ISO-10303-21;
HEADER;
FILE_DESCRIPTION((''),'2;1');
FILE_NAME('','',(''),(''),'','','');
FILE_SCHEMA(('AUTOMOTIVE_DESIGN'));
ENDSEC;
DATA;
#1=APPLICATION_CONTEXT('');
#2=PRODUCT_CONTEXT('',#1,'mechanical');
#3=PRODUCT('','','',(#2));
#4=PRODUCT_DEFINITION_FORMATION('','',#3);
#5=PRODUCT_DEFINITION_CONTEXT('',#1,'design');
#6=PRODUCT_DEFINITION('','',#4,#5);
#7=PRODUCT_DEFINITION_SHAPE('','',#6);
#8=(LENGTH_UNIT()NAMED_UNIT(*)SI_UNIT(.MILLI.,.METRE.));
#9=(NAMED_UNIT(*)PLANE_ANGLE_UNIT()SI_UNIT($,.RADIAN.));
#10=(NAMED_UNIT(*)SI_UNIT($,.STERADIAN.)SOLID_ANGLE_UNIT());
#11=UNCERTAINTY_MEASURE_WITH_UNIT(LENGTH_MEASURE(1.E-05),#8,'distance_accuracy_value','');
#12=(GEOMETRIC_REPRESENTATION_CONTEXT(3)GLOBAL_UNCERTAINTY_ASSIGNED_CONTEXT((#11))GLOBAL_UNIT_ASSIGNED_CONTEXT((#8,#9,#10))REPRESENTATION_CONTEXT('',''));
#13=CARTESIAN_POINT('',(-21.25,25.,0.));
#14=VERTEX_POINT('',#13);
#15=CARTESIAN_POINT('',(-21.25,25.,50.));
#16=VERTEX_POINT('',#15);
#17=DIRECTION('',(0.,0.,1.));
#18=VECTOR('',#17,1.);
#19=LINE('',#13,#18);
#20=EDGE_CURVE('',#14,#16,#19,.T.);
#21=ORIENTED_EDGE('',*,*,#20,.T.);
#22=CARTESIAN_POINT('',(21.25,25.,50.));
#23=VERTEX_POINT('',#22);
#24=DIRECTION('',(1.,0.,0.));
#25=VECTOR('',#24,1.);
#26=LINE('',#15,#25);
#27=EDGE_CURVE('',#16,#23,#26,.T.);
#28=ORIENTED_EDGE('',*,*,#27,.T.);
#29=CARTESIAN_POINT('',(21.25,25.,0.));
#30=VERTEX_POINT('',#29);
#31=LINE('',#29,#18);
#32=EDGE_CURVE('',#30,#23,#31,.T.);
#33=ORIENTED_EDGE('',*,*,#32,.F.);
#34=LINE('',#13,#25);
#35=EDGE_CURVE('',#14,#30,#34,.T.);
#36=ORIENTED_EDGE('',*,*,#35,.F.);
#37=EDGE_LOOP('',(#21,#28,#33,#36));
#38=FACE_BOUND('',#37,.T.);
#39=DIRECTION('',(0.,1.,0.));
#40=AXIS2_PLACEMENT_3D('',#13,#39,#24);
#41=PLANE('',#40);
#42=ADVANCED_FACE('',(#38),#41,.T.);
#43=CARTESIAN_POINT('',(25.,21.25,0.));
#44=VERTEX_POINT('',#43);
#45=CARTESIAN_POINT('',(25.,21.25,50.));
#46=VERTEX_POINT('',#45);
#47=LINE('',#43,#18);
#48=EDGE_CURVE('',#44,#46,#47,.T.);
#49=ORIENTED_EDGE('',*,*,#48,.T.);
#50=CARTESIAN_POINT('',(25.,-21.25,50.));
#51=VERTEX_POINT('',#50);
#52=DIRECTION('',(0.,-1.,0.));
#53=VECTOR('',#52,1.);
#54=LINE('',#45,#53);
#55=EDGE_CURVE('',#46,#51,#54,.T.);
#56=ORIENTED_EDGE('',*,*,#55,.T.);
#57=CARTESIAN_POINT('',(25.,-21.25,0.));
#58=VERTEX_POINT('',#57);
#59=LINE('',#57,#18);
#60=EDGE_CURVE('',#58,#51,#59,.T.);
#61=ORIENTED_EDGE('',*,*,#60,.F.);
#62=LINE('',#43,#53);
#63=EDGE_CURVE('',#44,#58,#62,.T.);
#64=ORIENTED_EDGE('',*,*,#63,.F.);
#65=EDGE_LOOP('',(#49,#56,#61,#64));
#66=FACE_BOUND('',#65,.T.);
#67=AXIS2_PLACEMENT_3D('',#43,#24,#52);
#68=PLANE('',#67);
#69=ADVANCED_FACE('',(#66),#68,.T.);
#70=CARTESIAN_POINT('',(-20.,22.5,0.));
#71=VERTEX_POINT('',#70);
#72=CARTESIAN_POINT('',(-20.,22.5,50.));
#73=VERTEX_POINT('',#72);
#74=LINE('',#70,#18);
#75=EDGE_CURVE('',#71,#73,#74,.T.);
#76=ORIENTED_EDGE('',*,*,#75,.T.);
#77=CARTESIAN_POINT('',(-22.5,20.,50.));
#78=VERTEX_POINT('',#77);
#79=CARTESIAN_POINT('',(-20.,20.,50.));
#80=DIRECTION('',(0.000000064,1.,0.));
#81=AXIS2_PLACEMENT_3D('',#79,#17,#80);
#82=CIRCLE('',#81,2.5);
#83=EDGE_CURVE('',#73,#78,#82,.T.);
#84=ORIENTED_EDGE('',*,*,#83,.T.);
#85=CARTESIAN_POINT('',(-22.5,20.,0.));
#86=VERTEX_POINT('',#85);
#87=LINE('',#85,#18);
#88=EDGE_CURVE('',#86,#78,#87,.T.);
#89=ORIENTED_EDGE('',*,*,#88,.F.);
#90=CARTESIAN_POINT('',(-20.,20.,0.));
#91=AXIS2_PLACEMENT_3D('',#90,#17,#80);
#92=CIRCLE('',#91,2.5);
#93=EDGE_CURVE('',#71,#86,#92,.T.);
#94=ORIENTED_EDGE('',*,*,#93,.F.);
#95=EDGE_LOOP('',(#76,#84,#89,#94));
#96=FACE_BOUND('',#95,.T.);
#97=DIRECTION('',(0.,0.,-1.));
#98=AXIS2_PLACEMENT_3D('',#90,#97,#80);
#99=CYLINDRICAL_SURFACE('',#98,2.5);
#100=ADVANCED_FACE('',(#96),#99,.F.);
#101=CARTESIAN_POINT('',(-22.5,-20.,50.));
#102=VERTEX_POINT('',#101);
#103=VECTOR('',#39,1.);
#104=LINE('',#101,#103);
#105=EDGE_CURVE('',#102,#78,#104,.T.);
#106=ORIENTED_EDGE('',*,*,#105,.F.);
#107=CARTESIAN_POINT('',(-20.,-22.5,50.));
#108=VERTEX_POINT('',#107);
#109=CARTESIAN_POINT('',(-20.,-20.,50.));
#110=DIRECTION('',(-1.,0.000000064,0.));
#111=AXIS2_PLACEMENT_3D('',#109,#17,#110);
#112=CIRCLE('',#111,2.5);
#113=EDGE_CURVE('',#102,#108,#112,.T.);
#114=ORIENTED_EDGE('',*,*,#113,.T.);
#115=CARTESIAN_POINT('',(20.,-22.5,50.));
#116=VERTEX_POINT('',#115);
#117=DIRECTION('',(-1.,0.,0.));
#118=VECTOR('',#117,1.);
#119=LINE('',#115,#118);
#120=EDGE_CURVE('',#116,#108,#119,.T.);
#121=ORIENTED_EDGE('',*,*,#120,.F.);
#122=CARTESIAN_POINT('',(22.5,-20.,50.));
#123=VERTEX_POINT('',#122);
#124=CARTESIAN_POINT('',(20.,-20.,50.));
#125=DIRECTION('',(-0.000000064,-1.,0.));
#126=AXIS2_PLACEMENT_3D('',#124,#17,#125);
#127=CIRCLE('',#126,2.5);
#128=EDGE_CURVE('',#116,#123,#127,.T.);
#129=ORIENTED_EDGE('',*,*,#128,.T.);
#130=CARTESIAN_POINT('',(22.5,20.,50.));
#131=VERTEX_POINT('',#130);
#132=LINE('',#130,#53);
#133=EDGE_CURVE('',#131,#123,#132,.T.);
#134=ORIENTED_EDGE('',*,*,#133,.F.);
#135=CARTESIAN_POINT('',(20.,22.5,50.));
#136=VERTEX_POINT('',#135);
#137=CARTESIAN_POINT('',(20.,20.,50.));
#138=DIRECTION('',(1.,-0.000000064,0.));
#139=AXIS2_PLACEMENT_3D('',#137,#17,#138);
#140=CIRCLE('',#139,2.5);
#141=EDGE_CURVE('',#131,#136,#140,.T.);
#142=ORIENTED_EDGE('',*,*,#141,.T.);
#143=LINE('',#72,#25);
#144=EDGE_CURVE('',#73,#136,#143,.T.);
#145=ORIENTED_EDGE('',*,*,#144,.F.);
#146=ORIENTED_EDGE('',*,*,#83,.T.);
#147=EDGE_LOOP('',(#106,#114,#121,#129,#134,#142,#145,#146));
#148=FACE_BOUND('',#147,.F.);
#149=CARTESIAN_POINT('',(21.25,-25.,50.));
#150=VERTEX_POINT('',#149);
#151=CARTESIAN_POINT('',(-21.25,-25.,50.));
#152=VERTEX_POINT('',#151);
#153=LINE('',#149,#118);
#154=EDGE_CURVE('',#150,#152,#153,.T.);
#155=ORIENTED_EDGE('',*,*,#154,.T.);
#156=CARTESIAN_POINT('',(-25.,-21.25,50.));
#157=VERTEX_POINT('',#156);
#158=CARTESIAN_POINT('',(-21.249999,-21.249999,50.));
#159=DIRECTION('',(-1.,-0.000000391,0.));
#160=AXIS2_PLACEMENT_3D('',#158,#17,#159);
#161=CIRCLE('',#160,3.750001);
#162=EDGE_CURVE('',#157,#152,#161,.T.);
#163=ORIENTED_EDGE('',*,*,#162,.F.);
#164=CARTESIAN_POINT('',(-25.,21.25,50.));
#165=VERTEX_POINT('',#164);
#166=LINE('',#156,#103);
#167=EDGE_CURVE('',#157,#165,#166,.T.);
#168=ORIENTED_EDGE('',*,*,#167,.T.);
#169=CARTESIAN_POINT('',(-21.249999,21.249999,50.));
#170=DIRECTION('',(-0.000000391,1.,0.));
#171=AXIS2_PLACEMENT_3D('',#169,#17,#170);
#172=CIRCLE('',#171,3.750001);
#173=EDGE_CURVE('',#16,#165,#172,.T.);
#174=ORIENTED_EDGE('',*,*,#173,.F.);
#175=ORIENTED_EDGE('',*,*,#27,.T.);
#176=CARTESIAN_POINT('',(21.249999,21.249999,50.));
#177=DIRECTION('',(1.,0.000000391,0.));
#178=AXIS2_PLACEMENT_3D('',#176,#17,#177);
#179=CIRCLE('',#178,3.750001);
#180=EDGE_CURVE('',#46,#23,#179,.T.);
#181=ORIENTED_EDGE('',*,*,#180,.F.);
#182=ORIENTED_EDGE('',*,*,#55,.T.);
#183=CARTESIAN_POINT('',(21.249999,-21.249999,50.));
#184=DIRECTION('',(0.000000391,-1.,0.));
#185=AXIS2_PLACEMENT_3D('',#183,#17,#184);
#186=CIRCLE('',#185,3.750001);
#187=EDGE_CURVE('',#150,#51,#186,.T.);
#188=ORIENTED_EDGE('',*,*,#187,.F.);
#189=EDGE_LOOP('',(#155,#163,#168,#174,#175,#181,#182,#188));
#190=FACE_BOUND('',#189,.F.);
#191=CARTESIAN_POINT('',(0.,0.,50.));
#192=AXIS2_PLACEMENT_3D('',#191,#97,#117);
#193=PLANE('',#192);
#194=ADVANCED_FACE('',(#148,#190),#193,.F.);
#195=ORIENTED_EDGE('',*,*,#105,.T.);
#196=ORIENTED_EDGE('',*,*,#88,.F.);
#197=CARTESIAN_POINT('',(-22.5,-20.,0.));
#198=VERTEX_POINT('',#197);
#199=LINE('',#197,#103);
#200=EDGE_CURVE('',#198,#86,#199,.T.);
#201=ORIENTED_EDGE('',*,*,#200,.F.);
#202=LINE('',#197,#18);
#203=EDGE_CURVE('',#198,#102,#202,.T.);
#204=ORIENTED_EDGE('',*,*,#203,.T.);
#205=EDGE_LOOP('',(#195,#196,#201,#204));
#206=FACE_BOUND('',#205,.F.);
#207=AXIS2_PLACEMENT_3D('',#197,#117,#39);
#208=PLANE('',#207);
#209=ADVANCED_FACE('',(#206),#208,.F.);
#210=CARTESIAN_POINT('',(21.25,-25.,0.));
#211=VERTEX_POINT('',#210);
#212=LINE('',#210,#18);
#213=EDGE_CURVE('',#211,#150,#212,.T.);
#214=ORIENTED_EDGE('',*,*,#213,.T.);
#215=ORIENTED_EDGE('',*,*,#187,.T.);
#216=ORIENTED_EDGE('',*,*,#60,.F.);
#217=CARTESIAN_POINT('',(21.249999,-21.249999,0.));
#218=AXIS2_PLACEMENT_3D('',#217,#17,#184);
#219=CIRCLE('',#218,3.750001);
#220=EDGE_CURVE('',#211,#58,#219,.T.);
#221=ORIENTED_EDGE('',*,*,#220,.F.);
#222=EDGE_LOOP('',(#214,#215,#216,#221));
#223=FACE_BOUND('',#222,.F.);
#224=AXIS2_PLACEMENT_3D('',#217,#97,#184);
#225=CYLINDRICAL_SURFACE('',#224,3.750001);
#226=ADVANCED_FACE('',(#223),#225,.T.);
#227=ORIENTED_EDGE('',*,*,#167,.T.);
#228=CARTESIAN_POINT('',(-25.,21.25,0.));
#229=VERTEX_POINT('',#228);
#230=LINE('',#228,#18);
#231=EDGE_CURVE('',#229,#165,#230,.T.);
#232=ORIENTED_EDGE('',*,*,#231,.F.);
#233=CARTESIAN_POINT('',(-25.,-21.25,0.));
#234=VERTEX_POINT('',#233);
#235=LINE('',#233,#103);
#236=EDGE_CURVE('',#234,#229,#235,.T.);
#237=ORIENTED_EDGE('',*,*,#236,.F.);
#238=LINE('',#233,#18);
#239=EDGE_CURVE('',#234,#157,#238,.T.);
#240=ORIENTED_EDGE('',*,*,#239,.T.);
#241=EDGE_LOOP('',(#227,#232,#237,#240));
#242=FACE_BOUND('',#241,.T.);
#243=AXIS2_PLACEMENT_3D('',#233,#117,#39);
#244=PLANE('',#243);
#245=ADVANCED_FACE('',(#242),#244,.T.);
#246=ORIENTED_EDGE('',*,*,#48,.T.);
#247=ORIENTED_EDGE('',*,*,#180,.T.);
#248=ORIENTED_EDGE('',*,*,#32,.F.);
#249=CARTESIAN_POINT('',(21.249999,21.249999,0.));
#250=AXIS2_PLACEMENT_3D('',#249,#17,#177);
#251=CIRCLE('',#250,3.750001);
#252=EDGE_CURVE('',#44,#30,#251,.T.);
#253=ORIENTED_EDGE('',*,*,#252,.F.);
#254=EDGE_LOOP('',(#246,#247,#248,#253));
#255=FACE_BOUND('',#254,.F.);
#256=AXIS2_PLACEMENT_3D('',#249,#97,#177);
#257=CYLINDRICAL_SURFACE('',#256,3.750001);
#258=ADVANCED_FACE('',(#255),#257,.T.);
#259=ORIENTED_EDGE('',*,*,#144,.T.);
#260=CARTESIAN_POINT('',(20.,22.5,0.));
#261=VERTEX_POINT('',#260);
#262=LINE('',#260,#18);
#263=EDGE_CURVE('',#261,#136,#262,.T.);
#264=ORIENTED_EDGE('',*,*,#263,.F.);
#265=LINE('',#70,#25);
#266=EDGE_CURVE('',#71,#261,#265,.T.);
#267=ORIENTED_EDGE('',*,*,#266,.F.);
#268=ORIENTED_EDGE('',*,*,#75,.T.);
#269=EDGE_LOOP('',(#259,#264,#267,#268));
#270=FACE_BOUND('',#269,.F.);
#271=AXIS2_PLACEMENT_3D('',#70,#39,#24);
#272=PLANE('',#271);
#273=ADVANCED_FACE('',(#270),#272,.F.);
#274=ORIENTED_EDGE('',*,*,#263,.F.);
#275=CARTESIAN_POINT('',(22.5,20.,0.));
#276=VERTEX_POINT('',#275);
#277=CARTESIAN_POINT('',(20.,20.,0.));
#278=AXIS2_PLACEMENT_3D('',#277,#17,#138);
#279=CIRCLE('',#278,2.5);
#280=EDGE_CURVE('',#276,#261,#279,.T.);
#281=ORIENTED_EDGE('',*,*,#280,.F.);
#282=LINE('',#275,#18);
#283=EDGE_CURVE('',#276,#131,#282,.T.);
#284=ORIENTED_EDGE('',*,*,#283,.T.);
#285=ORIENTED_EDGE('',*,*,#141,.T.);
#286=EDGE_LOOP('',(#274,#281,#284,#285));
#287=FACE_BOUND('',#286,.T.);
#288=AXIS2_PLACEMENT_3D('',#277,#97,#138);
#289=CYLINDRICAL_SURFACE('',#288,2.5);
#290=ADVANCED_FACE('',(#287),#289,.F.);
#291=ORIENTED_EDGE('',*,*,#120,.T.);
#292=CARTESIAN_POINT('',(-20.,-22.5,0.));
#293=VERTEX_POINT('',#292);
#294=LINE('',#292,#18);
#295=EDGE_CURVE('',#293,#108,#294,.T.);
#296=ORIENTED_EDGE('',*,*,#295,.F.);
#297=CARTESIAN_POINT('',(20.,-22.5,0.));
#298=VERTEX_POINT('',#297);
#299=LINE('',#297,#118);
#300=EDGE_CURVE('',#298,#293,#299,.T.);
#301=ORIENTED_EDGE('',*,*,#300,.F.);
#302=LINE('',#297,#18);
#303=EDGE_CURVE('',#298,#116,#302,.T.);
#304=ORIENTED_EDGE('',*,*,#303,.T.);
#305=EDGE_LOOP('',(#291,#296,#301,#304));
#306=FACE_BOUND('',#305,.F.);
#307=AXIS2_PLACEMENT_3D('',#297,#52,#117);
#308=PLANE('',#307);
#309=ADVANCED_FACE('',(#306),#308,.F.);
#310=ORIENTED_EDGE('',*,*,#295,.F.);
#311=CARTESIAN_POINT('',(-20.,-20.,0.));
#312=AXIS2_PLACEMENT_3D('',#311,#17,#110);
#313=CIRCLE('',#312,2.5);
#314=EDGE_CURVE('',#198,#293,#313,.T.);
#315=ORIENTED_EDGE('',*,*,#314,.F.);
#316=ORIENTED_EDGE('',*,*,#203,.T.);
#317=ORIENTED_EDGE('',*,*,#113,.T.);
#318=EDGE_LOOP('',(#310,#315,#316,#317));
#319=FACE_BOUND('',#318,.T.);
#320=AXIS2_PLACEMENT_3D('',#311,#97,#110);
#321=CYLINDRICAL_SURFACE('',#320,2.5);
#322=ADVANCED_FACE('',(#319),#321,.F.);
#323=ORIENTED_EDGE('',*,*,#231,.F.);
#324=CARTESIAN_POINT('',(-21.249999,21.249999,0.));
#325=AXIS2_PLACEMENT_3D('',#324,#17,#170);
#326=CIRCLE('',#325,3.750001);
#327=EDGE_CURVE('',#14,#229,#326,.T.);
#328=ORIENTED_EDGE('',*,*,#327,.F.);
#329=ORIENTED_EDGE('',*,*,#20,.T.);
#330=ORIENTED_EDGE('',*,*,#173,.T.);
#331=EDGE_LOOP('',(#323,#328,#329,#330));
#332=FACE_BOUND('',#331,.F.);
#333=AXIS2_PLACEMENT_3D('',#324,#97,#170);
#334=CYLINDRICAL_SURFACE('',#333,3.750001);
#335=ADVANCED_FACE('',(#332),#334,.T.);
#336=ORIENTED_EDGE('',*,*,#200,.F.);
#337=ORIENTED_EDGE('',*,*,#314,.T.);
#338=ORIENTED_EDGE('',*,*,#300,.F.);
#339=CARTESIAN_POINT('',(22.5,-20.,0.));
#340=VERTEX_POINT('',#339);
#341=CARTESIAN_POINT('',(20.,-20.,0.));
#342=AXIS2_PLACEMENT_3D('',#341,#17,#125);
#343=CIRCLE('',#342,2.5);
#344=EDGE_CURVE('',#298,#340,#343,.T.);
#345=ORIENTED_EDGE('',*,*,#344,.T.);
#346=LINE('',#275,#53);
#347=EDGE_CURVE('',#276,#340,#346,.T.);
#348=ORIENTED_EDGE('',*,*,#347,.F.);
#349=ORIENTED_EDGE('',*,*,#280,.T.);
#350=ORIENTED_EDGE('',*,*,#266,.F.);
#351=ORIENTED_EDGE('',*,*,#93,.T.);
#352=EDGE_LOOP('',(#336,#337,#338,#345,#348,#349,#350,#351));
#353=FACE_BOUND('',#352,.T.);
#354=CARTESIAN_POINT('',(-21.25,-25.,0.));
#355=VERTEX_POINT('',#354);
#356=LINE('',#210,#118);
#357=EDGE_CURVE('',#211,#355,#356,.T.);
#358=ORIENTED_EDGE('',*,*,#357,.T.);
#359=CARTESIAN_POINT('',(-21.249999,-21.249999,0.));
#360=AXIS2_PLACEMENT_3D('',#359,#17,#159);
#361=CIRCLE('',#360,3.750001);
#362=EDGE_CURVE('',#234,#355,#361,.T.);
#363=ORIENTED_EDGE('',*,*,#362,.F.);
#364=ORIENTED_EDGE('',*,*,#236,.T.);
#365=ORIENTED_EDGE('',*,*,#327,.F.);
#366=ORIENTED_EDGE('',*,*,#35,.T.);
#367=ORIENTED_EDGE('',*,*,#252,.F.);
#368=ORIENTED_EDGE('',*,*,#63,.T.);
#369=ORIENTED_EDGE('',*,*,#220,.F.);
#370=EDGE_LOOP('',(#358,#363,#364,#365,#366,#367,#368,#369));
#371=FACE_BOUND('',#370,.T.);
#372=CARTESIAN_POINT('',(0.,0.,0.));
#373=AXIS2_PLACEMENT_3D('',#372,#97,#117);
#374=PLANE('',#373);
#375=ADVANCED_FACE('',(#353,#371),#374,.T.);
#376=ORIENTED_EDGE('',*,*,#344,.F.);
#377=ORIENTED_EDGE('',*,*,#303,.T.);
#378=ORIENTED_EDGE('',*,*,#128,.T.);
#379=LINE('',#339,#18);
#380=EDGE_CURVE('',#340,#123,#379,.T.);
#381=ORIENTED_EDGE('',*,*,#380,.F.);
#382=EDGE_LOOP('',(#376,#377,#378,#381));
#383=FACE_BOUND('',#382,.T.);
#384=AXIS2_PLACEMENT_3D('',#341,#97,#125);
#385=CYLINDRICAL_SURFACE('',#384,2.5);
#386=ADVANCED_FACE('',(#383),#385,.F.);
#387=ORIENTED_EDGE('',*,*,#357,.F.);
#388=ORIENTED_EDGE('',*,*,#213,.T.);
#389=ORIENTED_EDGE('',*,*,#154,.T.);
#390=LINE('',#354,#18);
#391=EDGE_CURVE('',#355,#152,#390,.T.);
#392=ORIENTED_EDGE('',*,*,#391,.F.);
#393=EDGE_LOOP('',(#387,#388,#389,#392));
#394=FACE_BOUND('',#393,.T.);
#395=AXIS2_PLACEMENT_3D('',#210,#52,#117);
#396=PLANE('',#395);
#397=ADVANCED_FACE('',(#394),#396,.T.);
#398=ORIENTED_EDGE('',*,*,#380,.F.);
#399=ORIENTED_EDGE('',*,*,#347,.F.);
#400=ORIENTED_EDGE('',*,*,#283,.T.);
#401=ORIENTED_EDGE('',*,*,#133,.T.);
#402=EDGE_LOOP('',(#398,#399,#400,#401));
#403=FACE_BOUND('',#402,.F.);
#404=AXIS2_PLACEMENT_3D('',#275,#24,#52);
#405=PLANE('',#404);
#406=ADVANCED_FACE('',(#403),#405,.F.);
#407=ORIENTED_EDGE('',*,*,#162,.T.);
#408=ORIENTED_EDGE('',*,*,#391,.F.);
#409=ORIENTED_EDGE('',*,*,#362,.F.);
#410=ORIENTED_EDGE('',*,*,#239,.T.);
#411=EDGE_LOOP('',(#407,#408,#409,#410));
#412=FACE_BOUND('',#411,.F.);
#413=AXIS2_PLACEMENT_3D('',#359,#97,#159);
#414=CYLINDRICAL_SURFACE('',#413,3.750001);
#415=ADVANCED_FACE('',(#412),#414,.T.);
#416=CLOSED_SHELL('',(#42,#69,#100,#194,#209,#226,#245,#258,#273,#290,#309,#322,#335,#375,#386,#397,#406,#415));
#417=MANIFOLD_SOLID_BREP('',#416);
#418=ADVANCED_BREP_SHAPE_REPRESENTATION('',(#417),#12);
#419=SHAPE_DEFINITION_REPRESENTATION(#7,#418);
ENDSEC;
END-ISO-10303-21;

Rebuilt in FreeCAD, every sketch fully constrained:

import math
import FreeCAD as App
import Part
import Sketcher
from FreeCAD import Vector
Q = App.Units.Quantity

doc = App.newDocument("Part")
params = doc.addObject("Spreadsheet::Sheet", "Params")
for row, (alias, value) in enumerate([
    ("sketch1_radius", "2.5 mm"),
    ("sketch1_width", "40 mm"),
    ("sketch1_radius2", "3.750001 mm"),
    ("sketch1_width2", "42.5 mm"),
    ("pad1_length", "50 mm"),
], start=1):
    params.set(f"A{row}", alias)
    params.set(f"B{row}", "=" + value)
    params.setAlias(f"B{row}", alias)

body = doc.addObject("PartDesign::Body", "Body")

# Sketch on XY plane
sketch1 = doc.addObject("Sketcher::SketchObject", "Sketch")
body.addObject(sketch1)
sketch1.AttachmentSupport = (doc.XY_Plane, [""])
sketch1.MapMode = "FlatFace"
sketch1.addGeometry(Part.LineSegment(Vector(21.2, 25, 0), Vector(-21.2, 25, 0)), False)
sketch1.addGeometry(Part.ArcOfCircle(Part.Circle(Vector(-21.2, 21.2, 0), Vector(0, 0, 1), 3.8), math.radians(90), math.radians(180)), False)
sketch1.addGeometry(Part.LineSegment(Vector(-25, 21.2, 0), Vector(-25, -21.2, 0)), False)
sketch1.addGeometry(Part.ArcOfCircle(Part.Circle(Vector(-21.2, -21.2, 0), Vector(0, 0, 1), 3.8), math.radians(-180), math.radians(-90)), False)
sketch1.addGeometry(Part.LineSegment(Vector(-21.2, -25, 0), Vector(21.2, -25, 0)), False)
sketch1.addGeometry(Part.ArcOfCircle(Part.Circle(Vector(21.2, -21.2, 0), Vector(0, 0, 1), 3.8), math.radians(-90), math.radians(0)), False)
sketch1.addGeometry(Part.LineSegment(Vector(25, -21.2, 0), Vector(25, 21.2, 0)), False)
sketch1.addGeometry(Part.ArcOfCircle(Part.Circle(Vector(21.2, 21.2, 0), Vector(0, 0, 1), 3.8), math.radians(0), math.radians(90)), False)
sketch1.addGeometry(Part.LineSegment(Vector(-20, 22.5, 0), Vector(20, 22.5, 0)), False)
sketch1.addGeometry(Part.ArcOfCircle(Part.Circle(Vector(20, 20, 0), Vector(0, 0, 1), 2.5), math.radians(0), math.radians(90)), False)
sketch1.addGeometry(Part.LineSegment(Vector(22.5, 20, 0), Vector(22.5, -20, 0)), False)
sketch1.addGeometry(Part.ArcOfCircle(Part.Circle(Vector(20, -20, 0), Vector(0, 0, 1), 2.5), math.radians(-90), math.radians(0)), False)
sketch1.addGeometry(Part.LineSegment(Vector(20, -22.5, 0), Vector(-20, -22.5, 0)), False)
sketch1.addGeometry(Part.ArcOfCircle(Part.Circle(Vector(-20, -20, 0), Vector(0, 0, 1), 2.5), math.radians(180), math.radians(270)), False)
sketch1.addGeometry(Part.LineSegment(Vector(-22.5, -20, 0), Vector(-22.5, 20, 0)), False)
sketch1.addGeometry(Part.ArcOfCircle(Part.Circle(Vector(-20, 20, 0), Vector(0, 0, 1), 2.5), math.radians(90), math.radians(180)), False)
sketch1.addConstraint(Sketcher.Constraint("Tangent", 0, 2, 1, 1))
sketch1.addConstraint(Sketcher.Constraint("Tangent", 1, 2, 2, 1))
sketch1.addConstraint(Sketcher.Constraint("Tangent", 2, 2, 3, 1))
sketch1.addConstraint(Sketcher.Constraint("Tangent", 3, 2, 4, 1))
sketch1.addConstraint(Sketcher.Constraint("Tangent", 4, 2, 5, 1))
sketch1.addConstraint(Sketcher.Constraint("Tangent", 5, 2, 6, 1))
sketch1.addConstraint(Sketcher.Constraint("Tangent", 6, 2, 7, 1))
sketch1.addConstraint(Sketcher.Constraint("Tangent", 7, 2, 0, 1))
sketch1.addConstraint(Sketcher.Constraint("Tangent", 8, 2, 9, 2))
sketch1.addConstraint(Sketcher.Constraint("Tangent", 9, 1, 10, 1))
sketch1.addConstraint(Sketcher.Constraint("Tangent", 10, 2, 11, 2))
sketch1.addConstraint(Sketcher.Constraint("Tangent", 11, 1, 12, 1))
sketch1.addConstraint(Sketcher.Constraint("Tangent", 12, 2, 13, 2))
sketch1.addConstraint(Sketcher.Constraint("Tangent", 13, 1, 14, 1))
sketch1.addConstraint(Sketcher.Constraint("Tangent", 14, 2, 15, 2))
sketch1.addConstraint(Sketcher.Constraint("Tangent", 15, 1, 8, 1))
sketch1.addConstraint(Sketcher.Constraint("Horizontal", 0))
sketch1.addConstraint(Sketcher.Constraint("Vertical", 2))
sketch1.addConstraint(Sketcher.Constraint("Horizontal", 4))
sketch1.addConstraint(Sketcher.Constraint("Vertical", 6))
sketch1.addConstraint(Sketcher.Constraint("Horizontal", 8))
sketch1.addConstraint(Sketcher.Constraint("Vertical", 10))
sketch1.addConstraint(Sketcher.Constraint("Horizontal", 12))
sketch1.addConstraint(Sketcher.Constraint("Vertical", 14))
sketch1.addConstraint(Sketcher.Constraint("Equal", 1, 3))
sketch1.addConstraint(Sketcher.Constraint("Equal", 3, 5))
sketch1.addConstraint(Sketcher.Constraint("Equal", 5, 7))
sketch1.addConstraint(Sketcher.Constraint("Equal", 9, 11))
sketch1.addConstraint(Sketcher.Constraint("Equal", 11, 13))
sketch1.addConstraint(Sketcher.Constraint("Equal", 13, 15))
sketch1.addConstraint(Sketcher.Constraint("Symmetric", 1, 3, 5, 3, -1, 1))
sketch1.addConstraint(Sketcher.Constraint("Symmetric", 9, 3, 13, 3, -1, 1))
sketch1.addConstraint(Sketcher.Constraint("Equal", 4, 2))
sketch1.addConstraint(Sketcher.Constraint("Equal", 12, 10))
sketch1.addConstraint(Sketcher.Constraint("Radius", 9, Q("2.5 mm")))
sketch1.addConstraint(Sketcher.Constraint("DistanceX", 8, 1, 8, 2, Q("40 mm")))
sketch1.addConstraint(Sketcher.Constraint("Radius", 1, Q("3.750001 mm")))
sketch1.addConstraint(Sketcher.Constraint("DistanceX", 0, 2, 0, 1, Q("42.5 mm")))
sketch1.setExpression("Constraints[34]", "Params.sketch1_radius")
sketch1.setExpression("Constraints[35]", "Params.sketch1_width")
sketch1.setExpression("Constraints[36]", "Params.sketch1_radius2")
sketch1.setExpression("Constraints[37]", "Params.sketch1_width2")
pad1 = doc.addObject("PartDesign::Pad", "Pad")
body.addObject(pad1)
pad1.Profile = sketch1
pad1.setExpression("Length", "Params.pad1_length")

doc.recompute()
